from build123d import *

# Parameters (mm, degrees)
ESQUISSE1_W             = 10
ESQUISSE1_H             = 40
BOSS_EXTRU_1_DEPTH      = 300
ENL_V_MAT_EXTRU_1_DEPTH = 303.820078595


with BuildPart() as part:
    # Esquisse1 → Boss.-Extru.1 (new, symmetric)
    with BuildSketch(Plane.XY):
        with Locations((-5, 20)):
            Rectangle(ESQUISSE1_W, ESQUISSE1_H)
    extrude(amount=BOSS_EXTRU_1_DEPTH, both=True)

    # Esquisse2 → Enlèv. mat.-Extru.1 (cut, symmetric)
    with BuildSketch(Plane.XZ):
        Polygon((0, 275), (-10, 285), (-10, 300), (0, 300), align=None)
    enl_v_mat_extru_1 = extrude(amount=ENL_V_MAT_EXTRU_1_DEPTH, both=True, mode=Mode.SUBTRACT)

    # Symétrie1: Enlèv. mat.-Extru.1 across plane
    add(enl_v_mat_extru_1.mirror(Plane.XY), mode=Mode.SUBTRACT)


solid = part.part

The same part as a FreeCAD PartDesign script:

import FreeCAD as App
import Part
import Sketcher
from FreeCAD import Vector


def add_polygon(sketch, points):
    """Adds a closed chain of lines whose ends are joined by coincident constraints."""
    first, n = sketch.GeometryCount, len(points)
    for a, b in zip(points, points[1:] + points[:1]):
        sketch.addGeometry(Part.LineSegment(App.Vector(*a, 0), App.Vector(*b, 0)), False)
    for i in range(n):
        sketch.addConstraint(Sketcher.Constraint("Coincident", first + i, 2, first + (i + 1) % n, 1))

doc = App.newDocument("Part")
body = doc.addObject("PartDesign::Body", "Body")

# Sketch on XY plane
sketch1 = body.newObject("Sketcher::SketchObject", "Sketch")
sketch1.AttachmentSupport = (doc.getObject("XY_Plane"), [""])
sketch1.MapMode = "FlatFace"
add_polygon(sketch1, [(-10, 40), (-10, 0), (0, 0), (0, 40)])  # lines 0-3
sketch1.addConstraint([
    Sketcher.Constraint("Vertical", 0),
    Sketcher.Constraint("Horizontal", 1),
    Sketcher.Constraint("Vertical", 2),
    Sketcher.Constraint("Horizontal", 3),
    Sketcher.Constraint("Coincident", 1, 2, -1, 1),
    Sketcher.Constraint("DistanceX", 1, 1, 1, 2, 10.0),
    Sketcher.Constraint("DistanceY", 0, 2, 0, 1, 40.0),
])
pad1 = body.newObject("PartDesign::Pad", "Pad")
pad1.Profile = sketch1
pad1.Length = 600
pad1.Midplane = True

# Sketch on XZ plane
sketch2 = body.newObject("Sketcher::SketchObject", "Sketch001")
sketch2.AttachmentSupport = (doc.getObject("XZ_Plane"), [""])
sketch2.MapMode = "FlatFace"
add_polygon(sketch2, [(-10, 285), (0, 275), (0, 300), (-10, 300)])  # lines 0-3
sketch2.addConstraint([
    Sketcher.Constraint("Vertical", 1),
    Sketcher.Constraint("Horizontal", 2),
    Sketcher.Constraint("Vertical", 3),
    Sketcher.Constraint("PointOnObject", 0, 2, -2),
    Sketcher.Constraint("DistanceX", 2, 2, 2, 1, 10.0),
    Sketcher.Constraint("DistanceY", 1, 1, 1, 2, 25.0),
    Sketcher.Constraint("DistanceY", 3, 2, 3, 1, 15.0),
    Sketcher.Constraint("DistanceY", -1, 1, 0, 2, 275.0),
])
pocket1 = body.newObject("PartDesign::Pocket", "Pocket")
pocket1.Profile = sketch2
pocket1.Length = 607.640157
pocket1.Midplane = True
doc.recompute()

mirrored = body.newObject("PartDesign::Mirrored", "Mirrored")
mirrored.Originals = [pocket1]
mirrored.MirrorPlane = (doc.getObject("XY_Plane"), [""])
body.Tip = mirrored

doc.recompute()
